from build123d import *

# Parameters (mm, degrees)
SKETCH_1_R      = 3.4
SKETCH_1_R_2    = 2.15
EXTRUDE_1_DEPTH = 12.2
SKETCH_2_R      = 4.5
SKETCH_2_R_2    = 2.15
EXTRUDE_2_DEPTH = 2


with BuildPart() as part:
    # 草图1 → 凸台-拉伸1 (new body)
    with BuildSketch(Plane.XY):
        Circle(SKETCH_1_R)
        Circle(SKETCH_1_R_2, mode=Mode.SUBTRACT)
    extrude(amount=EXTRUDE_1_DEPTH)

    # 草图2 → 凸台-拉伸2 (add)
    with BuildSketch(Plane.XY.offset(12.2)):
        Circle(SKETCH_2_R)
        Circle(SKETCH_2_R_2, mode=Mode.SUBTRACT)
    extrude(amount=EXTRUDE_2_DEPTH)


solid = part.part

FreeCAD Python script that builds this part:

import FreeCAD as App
import Part
import Sketcher
Q = App.Units.Quantity

doc = App.newDocument("Part")
body = doc.addObject("PartDesign::Body", "Body")

# Sketch on XY plane
sketch1 = doc.addObject("Sketcher::SketchObject", "Sketch")
body.addObject(sketch1)
sketch1.AttachmentSupport = (doc.XY_Plane, [""])
sketch1.MapMode = "FlatFace"
sketch1.addGeometry(Part.Circle(App.Vector(0, 0, 0), App.Vector(0, 0, 1), 3.4), False)
sketch1.addGeometry(Part.Circle(App.Vector(0, 0, 0), App.Vector(0, 0, 1), 2.15), False)
sketch1.addConstraint(Sketcher.Constraint("Coincident", 0, 3, -1, 1))
sketch1.addConstraint(Sketcher.Constraint("Coincident", 1, 3, -1, 1))
sketch1.addConstraint(Sketcher.Constraint("Diameter", 0, Q("6.8 mm")))
sketch1.addConstraint(Sketcher.Constraint("Diameter", 1, Q("4.3 mm")))
pad1 = doc.addObject("PartDesign::Pad", "Pad")
body.addObject(pad1)
pad1.Profile = sketch1
pad1.Length = 12.2

# Sketch on XY plane
sketch2 = doc.addObject("Sketcher::SketchObject", "Sketch001")
body.addObject(sketch2)
sketch2.AttachmentSupport = (doc.XY_Plane, [""])
sketch2.MapMode = "FlatFace"
sketch2.AttachmentOffset = App.Placement(App.Vector(0, 0, 12.2), App.Rotation())
sketch2.addGeometry(Part.Circle(App.Vector(0, 0, 0), App.Vector(0, 0, 1), 4.5), False)
sketch2.addGeometry(Part.Circle(App.Vector(0, 0, 0), App.Vector(0, 0, 1), 2.15), False)
sketch2.addConstraint(Sketcher.Constraint("Coincident", 0, 3, -1, 1))
sketch2.addConstraint(Sketcher.Constraint("Coincident", 1, 3, -1, 1))
sketch2.addConstraint(Sketcher.Constraint("Diameter", 0, Q("9 mm")))
sketch2.addConstraint(Sketcher.Constraint("Diameter", 1, Q("4.3 mm")))
pad2 = doc.addObject("PartDesign::Pad", "Pad001")
body.addObject(pad2)
pad2.Profile = sketch2
pad2.Length = 2

doc.recompute()
